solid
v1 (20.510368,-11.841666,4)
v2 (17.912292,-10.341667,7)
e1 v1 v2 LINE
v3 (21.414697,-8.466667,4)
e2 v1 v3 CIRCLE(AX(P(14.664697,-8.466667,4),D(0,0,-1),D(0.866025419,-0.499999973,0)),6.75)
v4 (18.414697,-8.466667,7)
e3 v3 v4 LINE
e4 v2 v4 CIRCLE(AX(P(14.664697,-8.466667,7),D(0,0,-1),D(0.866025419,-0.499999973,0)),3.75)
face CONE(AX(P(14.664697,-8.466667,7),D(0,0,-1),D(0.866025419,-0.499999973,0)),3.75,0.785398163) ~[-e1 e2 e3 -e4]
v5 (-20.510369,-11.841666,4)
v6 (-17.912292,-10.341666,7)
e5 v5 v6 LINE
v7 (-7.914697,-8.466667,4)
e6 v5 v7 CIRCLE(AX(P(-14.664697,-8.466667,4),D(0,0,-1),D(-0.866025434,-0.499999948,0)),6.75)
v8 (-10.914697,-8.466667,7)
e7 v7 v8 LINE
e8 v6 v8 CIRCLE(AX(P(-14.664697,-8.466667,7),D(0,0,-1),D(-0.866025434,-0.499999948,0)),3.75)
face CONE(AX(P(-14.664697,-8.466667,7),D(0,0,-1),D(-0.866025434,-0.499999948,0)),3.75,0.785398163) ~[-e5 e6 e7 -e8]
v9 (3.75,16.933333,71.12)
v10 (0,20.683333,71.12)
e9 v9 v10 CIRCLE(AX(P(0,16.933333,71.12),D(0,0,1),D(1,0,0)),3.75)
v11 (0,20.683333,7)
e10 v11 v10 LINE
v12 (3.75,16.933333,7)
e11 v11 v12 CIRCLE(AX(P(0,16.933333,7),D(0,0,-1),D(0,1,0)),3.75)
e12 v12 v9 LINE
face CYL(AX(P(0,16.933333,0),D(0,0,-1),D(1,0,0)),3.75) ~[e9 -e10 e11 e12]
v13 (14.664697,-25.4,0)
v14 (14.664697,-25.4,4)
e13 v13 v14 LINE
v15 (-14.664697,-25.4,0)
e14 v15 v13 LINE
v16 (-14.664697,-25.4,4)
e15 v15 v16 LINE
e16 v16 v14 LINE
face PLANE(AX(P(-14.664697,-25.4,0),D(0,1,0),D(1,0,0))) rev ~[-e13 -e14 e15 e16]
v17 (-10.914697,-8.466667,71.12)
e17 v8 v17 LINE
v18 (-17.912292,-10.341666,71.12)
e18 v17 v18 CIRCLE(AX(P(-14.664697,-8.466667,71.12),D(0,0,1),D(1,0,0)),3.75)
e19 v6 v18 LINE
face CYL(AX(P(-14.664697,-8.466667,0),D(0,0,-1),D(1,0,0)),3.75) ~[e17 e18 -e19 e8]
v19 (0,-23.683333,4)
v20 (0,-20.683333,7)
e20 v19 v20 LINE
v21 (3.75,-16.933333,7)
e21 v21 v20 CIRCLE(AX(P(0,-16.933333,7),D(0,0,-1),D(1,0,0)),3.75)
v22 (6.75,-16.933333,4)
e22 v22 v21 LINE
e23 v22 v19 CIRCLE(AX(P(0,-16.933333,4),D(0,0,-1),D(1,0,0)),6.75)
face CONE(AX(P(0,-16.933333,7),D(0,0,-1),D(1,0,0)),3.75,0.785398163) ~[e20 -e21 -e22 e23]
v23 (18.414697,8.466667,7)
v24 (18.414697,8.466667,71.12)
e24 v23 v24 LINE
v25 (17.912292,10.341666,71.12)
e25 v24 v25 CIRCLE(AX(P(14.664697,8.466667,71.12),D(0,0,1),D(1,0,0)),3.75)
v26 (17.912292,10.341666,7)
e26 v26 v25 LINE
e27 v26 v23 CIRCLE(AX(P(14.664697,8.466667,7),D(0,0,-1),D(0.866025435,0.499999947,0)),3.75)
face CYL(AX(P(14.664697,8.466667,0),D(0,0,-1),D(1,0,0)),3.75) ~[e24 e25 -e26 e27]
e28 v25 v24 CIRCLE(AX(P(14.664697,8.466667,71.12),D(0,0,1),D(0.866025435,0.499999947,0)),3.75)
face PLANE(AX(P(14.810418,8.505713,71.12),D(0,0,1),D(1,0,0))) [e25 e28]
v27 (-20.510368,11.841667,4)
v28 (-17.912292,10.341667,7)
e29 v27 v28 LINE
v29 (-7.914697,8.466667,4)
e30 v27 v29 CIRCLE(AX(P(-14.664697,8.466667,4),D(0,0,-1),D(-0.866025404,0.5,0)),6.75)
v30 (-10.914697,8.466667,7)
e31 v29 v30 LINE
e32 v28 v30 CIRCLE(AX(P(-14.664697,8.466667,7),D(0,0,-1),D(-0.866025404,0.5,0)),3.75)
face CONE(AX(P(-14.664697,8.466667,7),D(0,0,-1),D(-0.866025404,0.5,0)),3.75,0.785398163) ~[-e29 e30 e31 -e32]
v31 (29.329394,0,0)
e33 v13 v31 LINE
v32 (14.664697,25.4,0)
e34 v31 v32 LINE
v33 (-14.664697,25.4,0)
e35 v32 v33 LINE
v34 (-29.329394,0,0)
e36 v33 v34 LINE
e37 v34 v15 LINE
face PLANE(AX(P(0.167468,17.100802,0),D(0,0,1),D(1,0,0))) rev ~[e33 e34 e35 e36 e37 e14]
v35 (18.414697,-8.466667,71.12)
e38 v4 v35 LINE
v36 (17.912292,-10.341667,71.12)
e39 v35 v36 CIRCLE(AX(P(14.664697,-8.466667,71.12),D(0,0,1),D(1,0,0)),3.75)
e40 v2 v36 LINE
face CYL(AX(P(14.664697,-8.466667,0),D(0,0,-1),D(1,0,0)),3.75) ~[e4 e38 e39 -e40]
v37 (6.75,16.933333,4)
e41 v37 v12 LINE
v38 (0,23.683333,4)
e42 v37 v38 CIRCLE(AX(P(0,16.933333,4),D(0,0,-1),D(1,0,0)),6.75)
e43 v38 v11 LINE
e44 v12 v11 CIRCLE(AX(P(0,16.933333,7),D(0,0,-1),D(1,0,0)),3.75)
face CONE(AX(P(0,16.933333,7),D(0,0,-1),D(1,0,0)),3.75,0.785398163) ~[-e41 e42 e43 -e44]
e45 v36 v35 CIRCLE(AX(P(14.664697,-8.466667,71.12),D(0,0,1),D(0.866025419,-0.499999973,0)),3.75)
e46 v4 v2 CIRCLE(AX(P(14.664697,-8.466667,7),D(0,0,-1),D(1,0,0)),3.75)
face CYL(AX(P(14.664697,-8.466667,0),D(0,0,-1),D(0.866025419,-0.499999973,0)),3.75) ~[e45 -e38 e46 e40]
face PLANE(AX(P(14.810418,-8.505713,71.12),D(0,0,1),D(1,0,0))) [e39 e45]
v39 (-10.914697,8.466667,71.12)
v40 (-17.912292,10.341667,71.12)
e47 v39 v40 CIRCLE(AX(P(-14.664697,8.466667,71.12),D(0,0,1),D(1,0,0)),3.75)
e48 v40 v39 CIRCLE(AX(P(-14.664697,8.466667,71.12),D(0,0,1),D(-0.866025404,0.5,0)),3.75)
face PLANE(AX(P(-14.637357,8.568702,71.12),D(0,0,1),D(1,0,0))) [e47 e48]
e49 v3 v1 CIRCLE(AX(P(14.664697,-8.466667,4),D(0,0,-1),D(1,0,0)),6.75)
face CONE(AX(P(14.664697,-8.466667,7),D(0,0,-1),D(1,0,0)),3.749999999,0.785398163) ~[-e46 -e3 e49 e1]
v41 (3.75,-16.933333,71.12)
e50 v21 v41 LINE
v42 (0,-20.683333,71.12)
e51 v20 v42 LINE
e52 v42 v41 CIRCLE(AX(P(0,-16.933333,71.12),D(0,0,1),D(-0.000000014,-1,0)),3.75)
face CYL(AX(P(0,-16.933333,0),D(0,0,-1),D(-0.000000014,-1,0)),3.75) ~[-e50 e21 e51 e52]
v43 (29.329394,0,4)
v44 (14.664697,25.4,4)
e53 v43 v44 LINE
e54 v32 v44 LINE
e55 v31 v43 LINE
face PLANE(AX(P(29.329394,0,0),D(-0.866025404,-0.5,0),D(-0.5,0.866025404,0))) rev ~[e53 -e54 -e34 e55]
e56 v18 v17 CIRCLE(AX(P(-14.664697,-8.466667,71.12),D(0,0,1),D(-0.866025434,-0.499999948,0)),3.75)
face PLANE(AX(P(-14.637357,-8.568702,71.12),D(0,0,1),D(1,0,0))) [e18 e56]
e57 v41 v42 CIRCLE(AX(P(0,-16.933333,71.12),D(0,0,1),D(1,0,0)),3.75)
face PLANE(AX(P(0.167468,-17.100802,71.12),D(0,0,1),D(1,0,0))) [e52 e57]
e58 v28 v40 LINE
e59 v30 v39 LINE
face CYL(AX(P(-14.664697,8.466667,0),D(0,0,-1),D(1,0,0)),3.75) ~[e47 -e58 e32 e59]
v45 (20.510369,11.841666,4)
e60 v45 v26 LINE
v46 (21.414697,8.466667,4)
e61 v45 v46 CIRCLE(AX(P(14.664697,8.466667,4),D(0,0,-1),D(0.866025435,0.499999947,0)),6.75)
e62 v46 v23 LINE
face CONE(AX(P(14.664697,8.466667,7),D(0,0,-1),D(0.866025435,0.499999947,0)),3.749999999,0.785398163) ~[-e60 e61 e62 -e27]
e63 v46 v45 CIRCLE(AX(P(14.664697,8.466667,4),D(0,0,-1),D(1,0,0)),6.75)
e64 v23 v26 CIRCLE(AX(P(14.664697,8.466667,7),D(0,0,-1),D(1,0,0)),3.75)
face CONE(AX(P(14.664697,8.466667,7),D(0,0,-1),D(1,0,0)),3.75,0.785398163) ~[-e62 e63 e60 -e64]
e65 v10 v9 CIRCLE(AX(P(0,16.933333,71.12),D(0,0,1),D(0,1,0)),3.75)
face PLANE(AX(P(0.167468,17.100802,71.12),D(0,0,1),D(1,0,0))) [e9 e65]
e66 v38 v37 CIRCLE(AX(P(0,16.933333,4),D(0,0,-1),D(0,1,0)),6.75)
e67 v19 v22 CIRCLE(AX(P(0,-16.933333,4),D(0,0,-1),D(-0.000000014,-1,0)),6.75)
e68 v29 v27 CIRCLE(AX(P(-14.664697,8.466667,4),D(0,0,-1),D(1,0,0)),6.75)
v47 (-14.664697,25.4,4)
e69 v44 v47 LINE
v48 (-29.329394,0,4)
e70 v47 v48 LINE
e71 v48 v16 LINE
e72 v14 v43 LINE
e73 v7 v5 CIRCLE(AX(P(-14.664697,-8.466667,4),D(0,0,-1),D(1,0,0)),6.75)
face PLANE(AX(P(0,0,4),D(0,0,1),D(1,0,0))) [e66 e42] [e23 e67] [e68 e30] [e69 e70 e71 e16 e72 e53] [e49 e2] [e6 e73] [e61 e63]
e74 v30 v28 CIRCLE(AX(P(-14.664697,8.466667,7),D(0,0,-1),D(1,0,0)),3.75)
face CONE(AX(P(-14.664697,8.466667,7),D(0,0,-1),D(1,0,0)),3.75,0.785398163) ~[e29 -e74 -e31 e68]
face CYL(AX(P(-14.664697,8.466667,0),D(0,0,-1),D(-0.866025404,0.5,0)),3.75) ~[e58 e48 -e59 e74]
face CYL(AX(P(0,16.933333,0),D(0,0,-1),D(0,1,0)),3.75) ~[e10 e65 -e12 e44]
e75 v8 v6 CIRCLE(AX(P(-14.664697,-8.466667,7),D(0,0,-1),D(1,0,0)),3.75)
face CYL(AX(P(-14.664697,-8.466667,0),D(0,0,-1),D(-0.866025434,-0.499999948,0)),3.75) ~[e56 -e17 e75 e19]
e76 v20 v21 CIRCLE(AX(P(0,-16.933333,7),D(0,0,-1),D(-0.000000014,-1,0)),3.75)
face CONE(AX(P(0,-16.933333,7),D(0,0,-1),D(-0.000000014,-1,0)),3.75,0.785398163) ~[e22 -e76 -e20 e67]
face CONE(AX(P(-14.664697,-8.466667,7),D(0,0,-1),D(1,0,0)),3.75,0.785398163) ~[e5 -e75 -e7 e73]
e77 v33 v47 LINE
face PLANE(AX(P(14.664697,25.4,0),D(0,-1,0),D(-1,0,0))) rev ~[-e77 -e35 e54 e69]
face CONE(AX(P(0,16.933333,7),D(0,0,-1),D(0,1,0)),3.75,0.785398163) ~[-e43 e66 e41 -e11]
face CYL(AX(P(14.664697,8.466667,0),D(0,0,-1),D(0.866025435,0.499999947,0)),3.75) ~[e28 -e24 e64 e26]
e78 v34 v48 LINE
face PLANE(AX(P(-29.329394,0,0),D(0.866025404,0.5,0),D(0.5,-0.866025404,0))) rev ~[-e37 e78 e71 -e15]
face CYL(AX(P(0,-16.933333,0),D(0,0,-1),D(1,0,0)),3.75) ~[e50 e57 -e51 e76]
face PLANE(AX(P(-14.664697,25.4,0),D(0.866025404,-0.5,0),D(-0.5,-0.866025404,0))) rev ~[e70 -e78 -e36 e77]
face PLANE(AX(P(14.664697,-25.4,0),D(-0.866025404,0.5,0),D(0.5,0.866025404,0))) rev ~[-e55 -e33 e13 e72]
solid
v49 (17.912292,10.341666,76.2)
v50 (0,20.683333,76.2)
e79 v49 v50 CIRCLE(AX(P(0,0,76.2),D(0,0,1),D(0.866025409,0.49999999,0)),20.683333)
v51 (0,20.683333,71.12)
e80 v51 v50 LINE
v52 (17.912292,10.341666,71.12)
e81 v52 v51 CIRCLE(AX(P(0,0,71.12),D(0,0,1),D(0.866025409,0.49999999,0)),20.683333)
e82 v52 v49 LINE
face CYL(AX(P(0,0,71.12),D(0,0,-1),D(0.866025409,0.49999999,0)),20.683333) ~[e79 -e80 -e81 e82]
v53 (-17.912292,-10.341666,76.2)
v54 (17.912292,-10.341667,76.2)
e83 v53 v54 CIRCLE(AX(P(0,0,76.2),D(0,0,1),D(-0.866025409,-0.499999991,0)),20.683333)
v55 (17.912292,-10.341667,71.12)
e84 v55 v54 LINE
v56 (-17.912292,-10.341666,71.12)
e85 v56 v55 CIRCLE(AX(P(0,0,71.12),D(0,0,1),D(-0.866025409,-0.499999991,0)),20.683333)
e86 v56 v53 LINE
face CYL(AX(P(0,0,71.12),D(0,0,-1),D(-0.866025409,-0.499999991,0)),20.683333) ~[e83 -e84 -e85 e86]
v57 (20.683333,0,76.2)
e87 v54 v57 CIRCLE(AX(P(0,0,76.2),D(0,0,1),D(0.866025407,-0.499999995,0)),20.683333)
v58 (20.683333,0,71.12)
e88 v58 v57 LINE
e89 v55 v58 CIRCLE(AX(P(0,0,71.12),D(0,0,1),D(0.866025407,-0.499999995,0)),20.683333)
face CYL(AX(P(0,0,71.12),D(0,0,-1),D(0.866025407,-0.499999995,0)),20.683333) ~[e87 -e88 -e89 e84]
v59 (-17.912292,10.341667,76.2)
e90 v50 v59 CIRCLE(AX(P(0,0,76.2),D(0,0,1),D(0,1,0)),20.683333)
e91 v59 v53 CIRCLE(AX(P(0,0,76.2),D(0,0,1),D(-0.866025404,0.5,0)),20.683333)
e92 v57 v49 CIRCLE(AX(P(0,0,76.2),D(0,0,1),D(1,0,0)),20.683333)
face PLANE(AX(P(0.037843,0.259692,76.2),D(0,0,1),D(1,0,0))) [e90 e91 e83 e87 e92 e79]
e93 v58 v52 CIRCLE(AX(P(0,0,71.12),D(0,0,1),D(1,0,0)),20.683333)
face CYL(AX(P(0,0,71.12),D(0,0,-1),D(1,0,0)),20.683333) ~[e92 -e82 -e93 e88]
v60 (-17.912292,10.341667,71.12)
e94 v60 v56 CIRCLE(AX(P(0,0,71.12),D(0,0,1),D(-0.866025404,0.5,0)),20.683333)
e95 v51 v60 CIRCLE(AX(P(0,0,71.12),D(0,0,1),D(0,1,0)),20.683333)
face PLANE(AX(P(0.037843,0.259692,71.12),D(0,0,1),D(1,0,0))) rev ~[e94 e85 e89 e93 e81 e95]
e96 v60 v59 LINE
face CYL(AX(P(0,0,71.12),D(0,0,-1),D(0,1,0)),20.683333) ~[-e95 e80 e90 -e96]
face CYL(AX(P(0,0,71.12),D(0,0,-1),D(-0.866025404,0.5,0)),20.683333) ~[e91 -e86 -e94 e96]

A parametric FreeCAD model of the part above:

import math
import FreeCAD as App
import Part
import Sketcher
from FreeCAD import Vector
Q = App.Units.Quantity


def edges_at(feature, points):
    """Names of the edges that pass closest to the given points."""
    edges = feature.Shape.Edges
    near = lambda p: min(range(len(edges)), key=lambda i: edges[i].distToShape(Part.Vertex(*p))[0])
    return sorted({f"Edge{near(p) + 1}" for p in points})


def add_polygon(sketch, points):
    """Adds a closed chain of lines whose ends are joined by coincident constraints."""
    first, n = sketch.GeometryCount, len(points)
    for a, b in zip(points, points[1:] + points[:1]):
        sketch.addGeometry(Part.LineSegment(App.Vector(*a, 0), App.Vector(*b, 0)), False)
    for i in range(n):
        sketch.addConstraint(Sketcher.Constraint("Coincident", first + i, 2, first + (i + 1) % n, 1))

doc = App.newDocument("Part")
body = doc.addObject("PartDesign::Body", "Body")

# Sketch on XY plane
sketch1 = body.newObject("Sketcher::SketchObject", "Sketch")
sketch1.AttachmentSupport = (doc.getObject("XY_Plane"), [""])
sketch1.MapMode = "FlatFace"
add_polygon(sketch1, [(15, 25), (-15, 25), (-29, 0), (-15, -25), (15, -25), (29, 0)])  # lines 0-5
sketch1.addConstraint(Sketcher.Constraint("Horizontal", 0))
sketch1.addConstraint(Sketcher.Constraint("Horizontal", 3))
sketch1.addConstraint(Sketcher.Constraint("Symmetric", 0, 2, 3, 2, -1, 1))
sketch1.addConstraint(Sketcher.Constraint("Symmetric", 1, 2, 4, 2, -1, 1))
sketch1.addConstraint(Sketcher.Constraint("PointOnObject", 1, 2, -1))
sketch1.addConstraint(Sketcher.Constraint("Parallel", 2, 5))
sketch1.addConstraint(Sketcher.Constraint("Vertical", 0, 2, 2, 2))
sketch1.addConstraint(Sketcher.Constraint("Angle", 1, Q("-120 deg")))
sketch1.addConstraint(Sketcher.Constraint("DistanceY", -1, 1, 0, 2, 25.4))
sketch1.addConstraint(Sketcher.Constraint("DistanceX", 0, 2, 0, 1, 29.329394))
pad1 = body.newObject("PartDesign::Pad", "Pad")
pad1.Profile = sketch1
pad1.Length = 4

# Sketch on XY plane
sketch2 = body.newObject("Sketcher::SketchObject", "Sketch001")
sketch2.AttachmentSupport = (doc.getObject("XY_Plane"), [""])
sketch2.MapMode = "FlatFace"
sketch2.addGeometry(Part.ArcOfCircle(Part.Circle(Vector(0, 16.9, 0), Vector(0, 0, 1), 3.8), math.radians(0), math.radians(90)), False)
sketch2.addGeometry(Part.ArcOfCircle(Part.Circle(Vector(0, 16.9, 0), Vector(0, 0, 1), 3.8), math.radians(90), math.radians(360)), False)
sketch2.addGeometry(Part.ArcOfCircle(Part.Circle(Vector(-14.7, 8.5, 0), Vector(0, 0, 1), 3.8), math.radians(150), math.radians(360)), False)
sketch2.addGeometry(Part.ArcOfCircle(Part.Circle(Vector(-14.7, 8.5, 0), Vector(0, 0, 1), 3.8), math.radians(0), math.radians(150)), False)
sketch2.addGeometry(Part.ArcOfCircle(Part.Circle(Vector(14.7, 8.5, 0), Vector(0, 0, 1), 3.7), math.radians(0), math.radians(30)), False)
sketch2.addGeometry(Part.ArcOfCircle(Part.Circle(Vector(14.7, 8.5, 0), Vector(0, 0, 1), 3.8), math.radians(30), math.radians(360)), False)
sketch2.addGeometry(Part.ArcOfCircle(Part.Circle(Vector(14.7, -8.5, 0), Vector(0, 0, 1), 3.8), math.radians(0), math.radians(330)), False)
sketch2.addGeometry(Part.ArcOfCircle(Part.Circle(Vector(14.7, -8.5, 0), Vector(0, 0, 1), 3.7), math.radians(-30), math.radians(0)), False)
sketch2.addGeometry(Part.ArcOfCircle(Part.Circle(Vector(0, -16.9, 0), Vector(0, 0, 1), 3.8), math.radians(0), math.radians(270)), False)
sketch2.addGeometry(Part.ArcOfCircle(Part.Circle(Vector(0, -16.9, 0), Vector(0, 0, 1), 3.8), math.radians(-90), math.radians(0)), False)
sketch2.addGeometry(Part.ArcOfCircle(Part.Circle(Vector(-14.7, -8.5, 0), Vector(0, 0, 1), 3.8), math.radians(0), math.radians(210)), False)
sketch2.addGeometry(Part.ArcOfCircle(Part.Circle(Vector(-14.7, -8.5, 0), Vector(0, 0, 1), 3.8), math.radians(-150), math.radians(0)), False)
sketch2.addConstraint(Sketcher.Constraint("Tangent", 0, 1, 1, 2))
sketch2.addConstraint(Sketcher.Constraint("Coincident", 1, 1, 0, 2))
sketch2.addConstraint(Sketcher.Constraint("Tangent", 2, 1, 3, 2))
sketch2.addConstraint(Sketcher.Constraint("Coincident", 3, 1, 2, 2))
sketch2.addConstraint(Sketcher.Constraint("Tangent", 4, 1, 5, 2))
sketch2.addConstraint(Sketcher.Constraint("Coincident", 5, 1, 4, 2))
sketch2.addConstraint(Sketcher.Constraint("Tangent", 6, 1, 7, 2))
sketch2.addConstraint(Sketcher.Constraint("Coincident", 7, 1, 6, 2))
sketch2.addConstraint(Sketcher.Constraint("Tangent", 8, 1, 9, 2))
sketch2.addConstraint(Sketcher.Constraint("Coincident", 9, 1, 8, 2))
sketch2.addConstraint(Sketcher.Constraint("Tangent", 10, 1, 11, 2))
sketch2.addConstraint(Sketcher.Constraint("Coincident", 11, 1, 10, 2))
sketch2.addConstraint(Sketcher.Constraint("Equal", 1, 2))
sketch2.addConstraint(Sketcher.Constraint("Equal", 3, 4))
sketch2.addConstraint(Sketcher.Constraint("Equal", 5, 6))
sketch2.addConstraint(Sketcher.Constraint("Equal", 7, 8))
sketch2.addConstraint(Sketcher.Constraint("Equal", 9, 10))
sketch2.addConstraint(Sketcher.Constraint("Symmetric", 2, 3, 6, 3, -1, 1))
sketch2.addConstraint(Sketcher.Constraint("Symmetric", 0, 3, 8, 3, -1, 1))
sketch2.addConstraint(Sketcher.Constraint("Symmetric", 4, 3, 10, 3, -1, 1))
sketch2.addConstraint(Sketcher.Constraint("Symmetric", 2, 3, 4, 3, -2))
sketch2.addConstraint(Sketcher.Constraint("Symmetric", 0, 1, 8, 1, -1))
sketch2.addConstraint(Sketcher.Constraint("PointOnObject", 1, 1, -2))
sketch2.addConstraint(Sketcher.Constraint("PointOnObject", 9, 1, -2))
sketch2.addConstraint(Sketcher.Constraint("Horizontal", 1, 3, 0, 1))
sketch2.addConstraint(Sketcher.Constraint("Horizontal", 5, 3, 3, 1))
sketch2.addConstraint(Sketcher.Constraint("Horizontal", 3, 1, 4, 1))
sketch2.addConstraint(Sketcher.Constraint("Horizontal", 2, 1, 5, 1))
sketch2.addConstraint(Sketcher.Constraint("Horizontal", 11, 3, 6, 1))
sketch2.addConstraint(Sketcher.Constraint("Horizontal", 6, 1, 10, 1))
sketch2.addConstraint(Sketcher.Constraint("Horizontal", 7, 1, 11, 1))
sketch2.addConstraint(Sketcher.Constraint("Vertical", 5, 1, 7, 1))
sketch2.addConstraint(Sketcher.Constraint("Radius", 0, 3.75))
sketch2.addConstraint(Sketcher.Constraint("DistanceY", 6, 3, 0, 3, 25.4))
sketch2.addConstraint(Sketcher.Constraint("DistanceY", 2, 3, 2, 1, 1.875))
sketch2.addConstraint(Sketcher.Constraint("DistanceY", -1, 1, 0, 3, 16.933333))
sketch2.addConstraint(Sketcher.Constraint("DistanceX", 2, 3, -1, 1, 14.664697))
pad2 = body.newObject("PartDesign::Pad", "Pad001")
pad2.Profile = sketch2
pad2.Length = 71.12
doc.recompute()

chamfer = body.newObject("PartDesign::Chamfer", "Chamfer")
chamfer.Base = (pad2, edges_at(pad2, [
    (11.042, -7.496, 4),
    (-2.652, -14.282, 4),
    (11.042, 7.496, 4),
    (-2.652, 14.282, 4),
    (-15.635, 4.844, 4),
    (-15.635, -4.844, 4),
]))
chamfer.Size = 3
body2 = doc.addObject("PartDesign::Body", "Body001")

# Sketch on XY plane
sketch3 = body2.newObject("Sketcher::SketchObject", "Sketch002")
sketch3.AttachmentSupport = (doc.getObject("XY_Plane001"), [""])
sketch3.MapMode = "FlatFace"
sketch3.AttachmentOffset = App.Placement(Vector(0, 0, 71.12), App.Rotation())
sketch3.addGeometry(Part.ArcOfCircle(Part.Circle(Vector(0, 0, 0), Vector(0, 0, 1), 21), math.radians(30), math.radians(90)), False)
sketch3.addGeometry(Part.ArcOfCircle(Part.Circle(Vector(0, 0, 0), Vector(0, 0, 1), 21), math.radians(90), math.radians(150)), False)
sketch3.addGeometry(Part.ArcOfCircle(Part.Circle(Vector(0, 0, 0), Vector(0, 0, 1), 21), math.radians(150), math.radians(210)), False)
sketch3.addGeometry(Part.ArcOfCircle(Part.Circle(Vector(0, 0, 0), Vector(0, 0, 1), 21), math.radians(-150), math.radians(-30)), False)
sketch3.addGeometry(Part.ArcOfCircle(Part.Circle(Vector(0, 0, 0), Vector(0, 0, 1), 21), math.radians(-30), math.radians(0)), False)
sketch3.addGeometry(Part.ArcOfCircle(Part.Circle(Vector(0, 0, 0), Vector(0, 0, 1), 21), math.radians(0), math.radians(30)), False)
sketch3.addConstraint(Sketcher.Constraint("Tangent", 0, 2, 1, 1))
sketch3.addConstraint(Sketcher.Constraint("Tangent", 1, 2, 2, 1))
sketch3.addConstraint(Sketcher.Constraint("Tangent", 2, 2, 3, 1))
sketch3.addConstraint(Sketcher.Constraint("Tangent", 3, 2, 4, 1))
sketch3.addConstraint(Sketcher.Constraint("Tangent", 4, 2, 5, 1))
sketch3.addConstraint(Sketcher.Constraint("Tangent", 5, 2, 0, 1))
sketch3.addConstraint(Sketcher.Constraint("Coincident", 0, 3, -1, 1))
sketch3.addConstraint(Sketcher.Constraint("Coincident", 2, 3, -1, 1))
sketch3.addConstraint(Sketcher.Constraint("Equal", 2, 3))
sketch3.addConstraint(Sketcher.Constraint("PointOnObject", 0, 2, -2))
sketch3.addConstraint(Sketcher.Constraint("PointOnObject", 4, 2, -1))
sketch3.addConstraint(Sketcher.Constraint("Horizontal", 2, 2, 3, 2))
sketch3.addConstraint(Sketcher.Constraint("Horizontal", 1, 2, 5, 2))
sketch3.addConstraint(Sketcher.Constraint("Vertical", 1, 2, 2, 2))
sketch3.addConstraint(Sketcher.Constraint("Radius", 0, 20.683333))
sketch3.addConstraint(Sketcher.Constraint("DistanceX", 3, 2, 4, 2, 2.771041))
pad3 = body2.newObject("PartDesign::Pad", "Pad002")
pad3.Profile = sketch3
pad3.Length = 5.08

doc.recompute()
